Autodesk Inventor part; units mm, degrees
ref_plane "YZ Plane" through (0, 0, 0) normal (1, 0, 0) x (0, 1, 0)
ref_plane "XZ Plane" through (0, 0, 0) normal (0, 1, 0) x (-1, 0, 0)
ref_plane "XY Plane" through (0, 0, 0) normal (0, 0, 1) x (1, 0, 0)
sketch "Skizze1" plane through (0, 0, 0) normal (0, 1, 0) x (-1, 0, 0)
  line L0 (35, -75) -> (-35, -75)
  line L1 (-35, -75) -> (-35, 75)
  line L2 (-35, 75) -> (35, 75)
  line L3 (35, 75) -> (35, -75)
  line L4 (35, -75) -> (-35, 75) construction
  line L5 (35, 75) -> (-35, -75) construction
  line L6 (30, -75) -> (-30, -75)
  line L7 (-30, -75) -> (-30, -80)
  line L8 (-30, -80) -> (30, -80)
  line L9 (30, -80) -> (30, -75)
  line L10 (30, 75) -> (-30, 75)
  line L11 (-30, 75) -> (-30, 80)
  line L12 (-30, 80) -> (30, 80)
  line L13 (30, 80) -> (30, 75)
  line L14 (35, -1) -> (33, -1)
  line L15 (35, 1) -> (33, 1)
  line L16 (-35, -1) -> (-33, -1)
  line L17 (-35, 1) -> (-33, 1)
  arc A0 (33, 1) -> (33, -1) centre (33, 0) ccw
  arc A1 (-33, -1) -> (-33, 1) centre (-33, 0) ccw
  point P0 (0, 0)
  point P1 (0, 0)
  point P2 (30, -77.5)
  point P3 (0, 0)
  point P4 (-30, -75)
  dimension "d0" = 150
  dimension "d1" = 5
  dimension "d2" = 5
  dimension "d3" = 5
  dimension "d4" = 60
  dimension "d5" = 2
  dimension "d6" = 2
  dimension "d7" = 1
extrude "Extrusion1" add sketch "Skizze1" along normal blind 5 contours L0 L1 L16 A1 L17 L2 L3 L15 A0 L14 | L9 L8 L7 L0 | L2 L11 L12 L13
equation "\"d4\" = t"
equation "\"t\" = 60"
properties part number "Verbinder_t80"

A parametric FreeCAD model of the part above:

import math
import FreeCAD as App
import Part
import Sketcher

V = App.Vector

doc = App.newDocument("Part")
params = doc.addObject("Spreadsheet::Sheet", "Params")
for row, (alias, value) in enumerate([
    ("sketch1_radius", "1 mm"),
    ("sketch1_width", "5 mm"),
    ("sketch1_width2", "2 mm"),
    ("sketch1_width3", "60 mm"),
    ("sketch1_height", "74 mm"),
    ("pad1_length", "5 mm"),
], start=1):
    params.set(f"A{row}", alias)
    params.set(f"B{row}", "=" + value)
    params.setAlias(f"B{row}", alias)

body = doc.addObject("PartDesign::Body", "Body")

sketch1 = body.newObject("Sketcher::SketchObject", "Sketch")
sketch1.AttachmentSupport = (doc.getObject("XZ_Plane"), [""])
sketch1.MapMode = "FlatFace"
sketch1.addGeometry(Part.LineSegment(V(-30, -75, 0), V(-35, -75, 0)), False)
sketch1.addGeometry(Part.LineSegment(V(-35, -75, 0), V(-35, -1, 0)), False)
sketch1.addGeometry(Part.LineSegment(V(-35, -1, 0), V(-33, -1, 0)), False)
sketch1.addGeometry(Part.ArcOfCircle(Part.Circle(V(-33, 0, 0), V(0, 0, 1), 1), math.radians(-90), math.radians(90)), False)
sketch1.addGeometry(Part.LineSegment(V(-33, 1, 0), V(-35, 1, 0)), False)
sketch1.addGeometry(Part.LineSegment(V(-35, 1, 0), V(-35, 75, 0)), False)
sketch1.addGeometry(Part.LineSegment(V(-35, 75, 0), V(-30, 75, 0)), False)
sketch1.addGeometry(Part.LineSegment(V(-30, 75, 0), V(-30, 80, 0)), False)
sketch1.addGeometry(Part.LineSegment(V(-30, 80, 0), V(30, 80, 0)), False)
sketch1.addGeometry(Part.LineSegment(V(30, 80, 0), V(30, 75, 0)), False)
sketch1.addGeometry(Part.LineSegment(V(30, 75, 0), V(35, 75, 0)), False)
sketch1.addGeometry(Part.LineSegment(V(35, 75, 0), V(35, 1, 0)), False)
sketch1.addGeometry(Part.LineSegment(V(35, 1, 0), V(33, 1, 0)), False)
sketch1.addGeometry(Part.ArcOfCircle(Part.Circle(V(33, 0, 0), V(0, 0, 1), 1), math.radians(90), math.radians(270)), False)
sketch1.addGeometry(Part.LineSegment(V(33, -1, 0), V(35, -1, 0)), False)
sketch1.addGeometry(Part.LineSegment(V(35, -1, 0), V(35, -75, 0)), False)
sketch1.addGeometry(Part.LineSegment(V(35, -75, 0), V(30, -75, 0)), False)
sketch1.addGeometry(Part.LineSegment(V(30, -75, 0), V(30, -80, 0)), False)
sketch1.addGeometry(Part.LineSegment(V(30, -80, 0), V(-30, -80, 0)), False)
sketch1.addGeometry(Part.LineSegment(V(-30, -80, 0), V(-30, -75, 0)), False)
sketch1.addConstraint(Sketcher.Constraint("Coincident", 0, 2, 1, 1))
sketch1.addConstraint(Sketcher.Constraint("Coincident", 1, 2, 2, 1))
sketch1.addConstraint(Sketcher.Constraint("Tangent", 2, 2, 3, 1))
sketch1.addConstraint(Sketcher.Constraint("Tangent", 3, 2, 4, 1))
sketch1.addConstraint(Sketcher.Constraint("Coincident", 4, 2, 5, 1))
sketch1.addConstraint(Sketcher.Constraint("Coincident", 5, 2, 6, 1))
sketch1.addConstraint(Sketcher.Constraint("Coincident", 6, 2, 7, 1))
sketch1.addConstraint(Sketcher.Constraint("Coincident", 7, 2, 8, 1))
sketch1.addConstraint(Sketcher.Constraint("Coincident", 8, 2, 9, 1))
sketch1.addConstraint(Sketcher.Constraint("Coincident", 9, 2, 10, 1))
sketch1.addConstraint(Sketcher.Constraint("Coincident", 10, 2, 11, 1))
sketch1.addConstraint(Sketcher.Constraint("Coincident", 11, 2, 12, 1))
sketch1.addConstraint(Sketcher.Constraint("Tangent", 12, 2, 13, 1))
sketch1.addConstraint(Sketcher.Constraint("Tangent", 13, 2, 14, 1))
sketch1.addConstraint(Sketcher.Constraint("Coincident", 14, 2, 15, 1))
sketch1.addConstraint(Sketcher.Constraint("Coincident", 15, 2, 16, 1))
sketch1.addConstraint(Sketcher.Constraint("Coincident", 16, 2, 17, 1))
sketch1.addConstraint(Sketcher.Constraint("Coincident", 17, 2, 18, 1))
sketch1.addConstraint(Sketcher.Constraint("Coincident", 18, 2, 19, 1))
sketch1.addConstraint(Sketcher.Constraint("Coincident", 19, 2, 0, 1))
sketch1.addConstraint(Sketcher.Constraint("Horizontal", 0))
sketch1.addConstraint(Sketcher.Constraint("Vertical", 1))
sketch1.addConstraint(Sketcher.Constraint("Horizontal", 2))
sketch1.addConstraint(Sketcher.Constraint("Horizontal", 4))
sketch1.addConstraint(Sketcher.Constraint("Vertical", 5))
sketch1.addConstraint(Sketcher.Constraint("Horizontal", 6))
sketch1.addConstraint(Sketcher.Constraint("Vertical", 7))
sketch1.addConstraint(Sketcher.Constraint("Horizontal", 8))
sketch1.addConstraint(Sketcher.Constraint("Vertical", 9))
sketch1.addConstraint(Sketcher.Constraint("Horizontal", 10))
sketch1.addConstraint(Sketcher.Constraint("Vertical", 11))
sketch1.addConstraint(Sketcher.Constraint("Horizontal", 12))
sketch1.addConstraint(Sketcher.Constraint("Horizontal", 14))
sketch1.addConstraint(Sketcher.Constraint("Vertical", 15))
sketch1.addConstraint(Sketcher.Constraint("Horizontal", 16))
sketch1.addConstraint(Sketcher.Constraint("Vertical", 17))
sketch1.addConstraint(Sketcher.Constraint("Horizontal", 18))
sketch1.addConstraint(Sketcher.Constraint("Vertical", 19))
sketch1.addConstraint(Sketcher.Constraint("Equal", 3, 13))
sketch1.addConstraint(Sketcher.Constraint("Symmetric", 3, 3, 13, 3, -1, 1))
sketch1.addConstraint(Sketcher.Constraint("Symmetric", 0, 2, 10, 2, -1, 1))
sketch1.addConstraint(Sketcher.Constraint("Symmetric", 5, 2, 15, 2, -1, 1))
sketch1.addConstraint(Sketcher.Constraint("Symmetric", 7, 2, 17, 2, -1, 1))
sketch1.addConstraint(Sketcher.Constraint("Symmetric", 6, 2, 9, 2, -2))
sketch1.addConstraint(Sketcher.Constraint("Symmetric", 4, 2, 11, 2, -2))
sketch1.addConstraint(Sketcher.Constraint("Vertical", 7, 2, 18, 2))
sketch1.addConstraint(Sketcher.Constraint("Equal", 16, 7))
sketch1.addConstraint(Sketcher.Constraint("Radius", 3, 1.0))
sketch1.addConstraint(Sketcher.Constraint("DistanceX", 0, 2, 0, 1, 5.0))
sketch1.addConstraint(Sketcher.Constraint("DistanceX", 2, 1, 2, 2, 2.0))
sketch1.addConstraint(Sketcher.Constraint("DistanceX", 8, 1, 8, 2, 60.0))
sketch1.addConstraint(Sketcher.Constraint("DistanceY", 1, 1, 1, 2, 74.0))
sketch1.setExpression("Constraints[47]", "Params.sketch1_radius")
sketch1.setExpression("Constraints[48]", "Params.sketch1_width")
sketch1.setExpression("Constraints[49]", "Params.sketch1_width2")
sketch1.setExpression("Constraints[50]", "Params.sketch1_width3")
sketch1.setExpression("Constraints[51]", "Params.sketch1_height")
pad1 = body.newObject("PartDesign::Pad", "Pad")
pad1.Profile = sketch1
pad1.setExpression("Length", "Params.pad1_length")
pad1.Reversed = True

doc.recompute()
